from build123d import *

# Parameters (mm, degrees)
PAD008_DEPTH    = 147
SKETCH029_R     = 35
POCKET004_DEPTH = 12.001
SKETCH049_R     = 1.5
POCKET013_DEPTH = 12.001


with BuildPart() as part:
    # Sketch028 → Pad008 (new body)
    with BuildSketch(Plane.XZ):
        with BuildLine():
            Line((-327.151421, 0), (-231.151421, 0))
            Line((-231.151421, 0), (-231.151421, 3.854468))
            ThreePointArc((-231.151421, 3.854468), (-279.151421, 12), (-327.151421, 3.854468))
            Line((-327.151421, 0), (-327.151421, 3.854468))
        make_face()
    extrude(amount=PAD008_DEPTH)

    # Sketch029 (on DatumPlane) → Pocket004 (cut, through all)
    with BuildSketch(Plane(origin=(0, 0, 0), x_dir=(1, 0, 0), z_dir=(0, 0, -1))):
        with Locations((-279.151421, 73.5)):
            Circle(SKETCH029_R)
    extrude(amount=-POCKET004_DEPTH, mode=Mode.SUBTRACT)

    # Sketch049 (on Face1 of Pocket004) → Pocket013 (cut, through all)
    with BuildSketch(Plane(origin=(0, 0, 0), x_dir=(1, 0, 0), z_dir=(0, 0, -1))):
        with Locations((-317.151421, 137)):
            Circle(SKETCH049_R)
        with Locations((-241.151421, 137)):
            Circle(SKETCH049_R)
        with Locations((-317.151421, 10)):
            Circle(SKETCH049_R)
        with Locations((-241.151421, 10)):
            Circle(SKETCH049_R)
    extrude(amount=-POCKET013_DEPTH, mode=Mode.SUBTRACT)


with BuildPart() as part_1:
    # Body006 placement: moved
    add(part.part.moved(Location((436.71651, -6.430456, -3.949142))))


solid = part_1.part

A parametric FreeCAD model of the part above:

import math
import FreeCAD as App
import Part
import Sketcher

V = App.Vector

doc = App.newDocument("Part")
body = doc.addObject("PartDesign::Body", "Body")

sketch1 = body.newObject("Sketcher::SketchObject", "Sketch")
sketch1.AttachmentSupport = (doc.getObject("XZ_Plane"), [""])
sketch1.MapMode = "FlatFace"
sketch1.addGeometry(Part.LineSegment(V(-327.151421, 0, 0), V(-231.151421, 0, 0)), False)
sketch1.addGeometry(Part.LineSegment(V(-231.151421, 0, 0), V(-231.151421, 3.854468, 0)), False)
sketch1.addGeometry(Part.ArcOfCircle(Part.Circle(V(-279.151421, -133.499993, 0), V(0, 0, 1), 145.499993), math.radians(70.737481), math.radians(109.262519)), False)
sketch1.addGeometry(Part.LineSegment(V(-327.151421, 3.854468, 0), V(-327.151421, 0, 0)), False)
sketch1.addConstraint(Sketcher.Constraint("Coincident", 0, 2, 1, 1))
sketch1.addConstraint(Sketcher.Constraint("Coincident", 1, 2, 2, 1))
sketch1.addConstraint(Sketcher.Constraint("Coincident", 2, 2, 3, 1))
sketch1.addConstraint(Sketcher.Constraint("Coincident", 3, 2, 0, 1))
sketch1.addConstraint(Sketcher.Constraint("Horizontal", 0))
sketch1.addConstraint(Sketcher.Constraint("Vertical", 1))
sketch1.addConstraint(Sketcher.Constraint("Vertical", 3))
sketch1.addConstraint(Sketcher.Constraint("PointOnObject", 0, 2, -1))
sketch1.addConstraint(Sketcher.Constraint("Horizontal", 1, 2, 2, 2))
sketch1.addConstraint(Sketcher.Constraint("DistanceX", 0, 1, 0, 2, 96.0))
sketch1.addConstraint(Sketcher.Constraint("Radius", 2, 145.499993))
sketch1.addConstraint(Sketcher.Constraint("DistanceY", 1, 1, 1, 2, 3.854468))
sketch1.addConstraint(Sketcher.Constraint("DistanceX", 2, 3, -1, 1, 279.151421))
pad1 = body.newObject("PartDesign::Pad", "Pad")
pad1.Profile = sketch1
pad1.Length = 147

sketch2 = body.newObject("Sketcher::SketchObject", "Sketch001")
sketch2.AttachmentSupport = (doc.getObject("XY_Plane"), [""])
sketch2.MapMode = "FlatFace"
sketch2.addGeometry(Part.Circle(V(-279.151421, -73.5, 0), V(0, 0, 1), 35), False)
sketch2.addConstraint(Sketcher.Constraint("Diameter", 0, 70.0))
sketch2.addConstraint(Sketcher.Constraint("DistanceY", 0, 3, -1, 1, 73.5))
sketch2.addConstraint(Sketcher.Constraint("DistanceX", 0, 3, -1, 1, 279.151421))
pocket1 = body.newObject("PartDesign::Pocket", "Pocket")
pocket1.Profile = sketch2
pocket1.Type = "ThroughAll"
pocket1.Reversed = True

sketch3 = body.newObject("Sketcher::SketchObject", "Sketch002")
sketch3.AttachmentSupport = (doc.getObject("XY_Plane"), [""])
sketch3.MapMode = "FlatFace"
sketch3.addGeometry(Part.Circle(V(-317.151421, -137, 0), V(0, 0, 1), 1.5), False)
sketch3.addGeometry(Part.Circle(V(-241.151421, -137, 0), V(0, 0, 1), 1.5), False)
sketch3.addGeometry(Part.Circle(V(-317.151421, -10, 0), V(0, 0, 1), 1.5), False)
sketch3.addGeometry(Part.Circle(V(-241.151421, -10, 0), V(0, 0, 1), 1.5), False)
sketch3.addConstraint(Sketcher.Constraint("Equal", 0, 1))
sketch3.addConstraint(Sketcher.Constraint("Equal", 1, 2))
sketch3.addConstraint(Sketcher.Constraint("Equal", 2, 3))
sketch3.addConstraint(Sketcher.Constraint("Horizontal", 0, 3, 1, 3))
sketch3.addConstraint(Sketcher.Constraint("Horizontal", 2, 3, 3, 3))
sketch3.addConstraint(Sketcher.Constraint("Vertical", 0, 3, 2, 3))
sketch3.addConstraint(Sketcher.Constraint("Vertical", 1, 3, 3, 3))
sketch3.addConstraint(Sketcher.Constraint("Diameter", 0, 3.0))
sketch3.addConstraint(Sketcher.Constraint("DistanceY", 0, 3, -1, 1, 137.0))
sketch3.addConstraint(Sketcher.Constraint("DistanceY", 2, 3, -1, 1, 10.0))
sketch3.addConstraint(Sketcher.Constraint("DistanceX", 0, 3, 1, 3, 76.0))
sketch3.addConstraint(Sketcher.Constraint("DistanceX", 0, 3, -1, 1, 317.151421))
pocket2 = body.newObject("PartDesign::Pocket", "Pocket001")
pocket2.Profile = sketch3
pocket2.Type = "ThroughAll"
pocket2.Reversed = True
body2 = doc.addObject("PartDesign::Body", "Body001")
doc.recompute()

body.Placement = App.Placement(V(436.71651, -6.430456, -3.949142), App.Rotation(V(0, 0, 1), 0))
boolean = body2.newObject("PartDesign::Boolean", "Boolean")
boolean.Type = "Fuse"
boolean.addObjects([body])

doc.recompute()
